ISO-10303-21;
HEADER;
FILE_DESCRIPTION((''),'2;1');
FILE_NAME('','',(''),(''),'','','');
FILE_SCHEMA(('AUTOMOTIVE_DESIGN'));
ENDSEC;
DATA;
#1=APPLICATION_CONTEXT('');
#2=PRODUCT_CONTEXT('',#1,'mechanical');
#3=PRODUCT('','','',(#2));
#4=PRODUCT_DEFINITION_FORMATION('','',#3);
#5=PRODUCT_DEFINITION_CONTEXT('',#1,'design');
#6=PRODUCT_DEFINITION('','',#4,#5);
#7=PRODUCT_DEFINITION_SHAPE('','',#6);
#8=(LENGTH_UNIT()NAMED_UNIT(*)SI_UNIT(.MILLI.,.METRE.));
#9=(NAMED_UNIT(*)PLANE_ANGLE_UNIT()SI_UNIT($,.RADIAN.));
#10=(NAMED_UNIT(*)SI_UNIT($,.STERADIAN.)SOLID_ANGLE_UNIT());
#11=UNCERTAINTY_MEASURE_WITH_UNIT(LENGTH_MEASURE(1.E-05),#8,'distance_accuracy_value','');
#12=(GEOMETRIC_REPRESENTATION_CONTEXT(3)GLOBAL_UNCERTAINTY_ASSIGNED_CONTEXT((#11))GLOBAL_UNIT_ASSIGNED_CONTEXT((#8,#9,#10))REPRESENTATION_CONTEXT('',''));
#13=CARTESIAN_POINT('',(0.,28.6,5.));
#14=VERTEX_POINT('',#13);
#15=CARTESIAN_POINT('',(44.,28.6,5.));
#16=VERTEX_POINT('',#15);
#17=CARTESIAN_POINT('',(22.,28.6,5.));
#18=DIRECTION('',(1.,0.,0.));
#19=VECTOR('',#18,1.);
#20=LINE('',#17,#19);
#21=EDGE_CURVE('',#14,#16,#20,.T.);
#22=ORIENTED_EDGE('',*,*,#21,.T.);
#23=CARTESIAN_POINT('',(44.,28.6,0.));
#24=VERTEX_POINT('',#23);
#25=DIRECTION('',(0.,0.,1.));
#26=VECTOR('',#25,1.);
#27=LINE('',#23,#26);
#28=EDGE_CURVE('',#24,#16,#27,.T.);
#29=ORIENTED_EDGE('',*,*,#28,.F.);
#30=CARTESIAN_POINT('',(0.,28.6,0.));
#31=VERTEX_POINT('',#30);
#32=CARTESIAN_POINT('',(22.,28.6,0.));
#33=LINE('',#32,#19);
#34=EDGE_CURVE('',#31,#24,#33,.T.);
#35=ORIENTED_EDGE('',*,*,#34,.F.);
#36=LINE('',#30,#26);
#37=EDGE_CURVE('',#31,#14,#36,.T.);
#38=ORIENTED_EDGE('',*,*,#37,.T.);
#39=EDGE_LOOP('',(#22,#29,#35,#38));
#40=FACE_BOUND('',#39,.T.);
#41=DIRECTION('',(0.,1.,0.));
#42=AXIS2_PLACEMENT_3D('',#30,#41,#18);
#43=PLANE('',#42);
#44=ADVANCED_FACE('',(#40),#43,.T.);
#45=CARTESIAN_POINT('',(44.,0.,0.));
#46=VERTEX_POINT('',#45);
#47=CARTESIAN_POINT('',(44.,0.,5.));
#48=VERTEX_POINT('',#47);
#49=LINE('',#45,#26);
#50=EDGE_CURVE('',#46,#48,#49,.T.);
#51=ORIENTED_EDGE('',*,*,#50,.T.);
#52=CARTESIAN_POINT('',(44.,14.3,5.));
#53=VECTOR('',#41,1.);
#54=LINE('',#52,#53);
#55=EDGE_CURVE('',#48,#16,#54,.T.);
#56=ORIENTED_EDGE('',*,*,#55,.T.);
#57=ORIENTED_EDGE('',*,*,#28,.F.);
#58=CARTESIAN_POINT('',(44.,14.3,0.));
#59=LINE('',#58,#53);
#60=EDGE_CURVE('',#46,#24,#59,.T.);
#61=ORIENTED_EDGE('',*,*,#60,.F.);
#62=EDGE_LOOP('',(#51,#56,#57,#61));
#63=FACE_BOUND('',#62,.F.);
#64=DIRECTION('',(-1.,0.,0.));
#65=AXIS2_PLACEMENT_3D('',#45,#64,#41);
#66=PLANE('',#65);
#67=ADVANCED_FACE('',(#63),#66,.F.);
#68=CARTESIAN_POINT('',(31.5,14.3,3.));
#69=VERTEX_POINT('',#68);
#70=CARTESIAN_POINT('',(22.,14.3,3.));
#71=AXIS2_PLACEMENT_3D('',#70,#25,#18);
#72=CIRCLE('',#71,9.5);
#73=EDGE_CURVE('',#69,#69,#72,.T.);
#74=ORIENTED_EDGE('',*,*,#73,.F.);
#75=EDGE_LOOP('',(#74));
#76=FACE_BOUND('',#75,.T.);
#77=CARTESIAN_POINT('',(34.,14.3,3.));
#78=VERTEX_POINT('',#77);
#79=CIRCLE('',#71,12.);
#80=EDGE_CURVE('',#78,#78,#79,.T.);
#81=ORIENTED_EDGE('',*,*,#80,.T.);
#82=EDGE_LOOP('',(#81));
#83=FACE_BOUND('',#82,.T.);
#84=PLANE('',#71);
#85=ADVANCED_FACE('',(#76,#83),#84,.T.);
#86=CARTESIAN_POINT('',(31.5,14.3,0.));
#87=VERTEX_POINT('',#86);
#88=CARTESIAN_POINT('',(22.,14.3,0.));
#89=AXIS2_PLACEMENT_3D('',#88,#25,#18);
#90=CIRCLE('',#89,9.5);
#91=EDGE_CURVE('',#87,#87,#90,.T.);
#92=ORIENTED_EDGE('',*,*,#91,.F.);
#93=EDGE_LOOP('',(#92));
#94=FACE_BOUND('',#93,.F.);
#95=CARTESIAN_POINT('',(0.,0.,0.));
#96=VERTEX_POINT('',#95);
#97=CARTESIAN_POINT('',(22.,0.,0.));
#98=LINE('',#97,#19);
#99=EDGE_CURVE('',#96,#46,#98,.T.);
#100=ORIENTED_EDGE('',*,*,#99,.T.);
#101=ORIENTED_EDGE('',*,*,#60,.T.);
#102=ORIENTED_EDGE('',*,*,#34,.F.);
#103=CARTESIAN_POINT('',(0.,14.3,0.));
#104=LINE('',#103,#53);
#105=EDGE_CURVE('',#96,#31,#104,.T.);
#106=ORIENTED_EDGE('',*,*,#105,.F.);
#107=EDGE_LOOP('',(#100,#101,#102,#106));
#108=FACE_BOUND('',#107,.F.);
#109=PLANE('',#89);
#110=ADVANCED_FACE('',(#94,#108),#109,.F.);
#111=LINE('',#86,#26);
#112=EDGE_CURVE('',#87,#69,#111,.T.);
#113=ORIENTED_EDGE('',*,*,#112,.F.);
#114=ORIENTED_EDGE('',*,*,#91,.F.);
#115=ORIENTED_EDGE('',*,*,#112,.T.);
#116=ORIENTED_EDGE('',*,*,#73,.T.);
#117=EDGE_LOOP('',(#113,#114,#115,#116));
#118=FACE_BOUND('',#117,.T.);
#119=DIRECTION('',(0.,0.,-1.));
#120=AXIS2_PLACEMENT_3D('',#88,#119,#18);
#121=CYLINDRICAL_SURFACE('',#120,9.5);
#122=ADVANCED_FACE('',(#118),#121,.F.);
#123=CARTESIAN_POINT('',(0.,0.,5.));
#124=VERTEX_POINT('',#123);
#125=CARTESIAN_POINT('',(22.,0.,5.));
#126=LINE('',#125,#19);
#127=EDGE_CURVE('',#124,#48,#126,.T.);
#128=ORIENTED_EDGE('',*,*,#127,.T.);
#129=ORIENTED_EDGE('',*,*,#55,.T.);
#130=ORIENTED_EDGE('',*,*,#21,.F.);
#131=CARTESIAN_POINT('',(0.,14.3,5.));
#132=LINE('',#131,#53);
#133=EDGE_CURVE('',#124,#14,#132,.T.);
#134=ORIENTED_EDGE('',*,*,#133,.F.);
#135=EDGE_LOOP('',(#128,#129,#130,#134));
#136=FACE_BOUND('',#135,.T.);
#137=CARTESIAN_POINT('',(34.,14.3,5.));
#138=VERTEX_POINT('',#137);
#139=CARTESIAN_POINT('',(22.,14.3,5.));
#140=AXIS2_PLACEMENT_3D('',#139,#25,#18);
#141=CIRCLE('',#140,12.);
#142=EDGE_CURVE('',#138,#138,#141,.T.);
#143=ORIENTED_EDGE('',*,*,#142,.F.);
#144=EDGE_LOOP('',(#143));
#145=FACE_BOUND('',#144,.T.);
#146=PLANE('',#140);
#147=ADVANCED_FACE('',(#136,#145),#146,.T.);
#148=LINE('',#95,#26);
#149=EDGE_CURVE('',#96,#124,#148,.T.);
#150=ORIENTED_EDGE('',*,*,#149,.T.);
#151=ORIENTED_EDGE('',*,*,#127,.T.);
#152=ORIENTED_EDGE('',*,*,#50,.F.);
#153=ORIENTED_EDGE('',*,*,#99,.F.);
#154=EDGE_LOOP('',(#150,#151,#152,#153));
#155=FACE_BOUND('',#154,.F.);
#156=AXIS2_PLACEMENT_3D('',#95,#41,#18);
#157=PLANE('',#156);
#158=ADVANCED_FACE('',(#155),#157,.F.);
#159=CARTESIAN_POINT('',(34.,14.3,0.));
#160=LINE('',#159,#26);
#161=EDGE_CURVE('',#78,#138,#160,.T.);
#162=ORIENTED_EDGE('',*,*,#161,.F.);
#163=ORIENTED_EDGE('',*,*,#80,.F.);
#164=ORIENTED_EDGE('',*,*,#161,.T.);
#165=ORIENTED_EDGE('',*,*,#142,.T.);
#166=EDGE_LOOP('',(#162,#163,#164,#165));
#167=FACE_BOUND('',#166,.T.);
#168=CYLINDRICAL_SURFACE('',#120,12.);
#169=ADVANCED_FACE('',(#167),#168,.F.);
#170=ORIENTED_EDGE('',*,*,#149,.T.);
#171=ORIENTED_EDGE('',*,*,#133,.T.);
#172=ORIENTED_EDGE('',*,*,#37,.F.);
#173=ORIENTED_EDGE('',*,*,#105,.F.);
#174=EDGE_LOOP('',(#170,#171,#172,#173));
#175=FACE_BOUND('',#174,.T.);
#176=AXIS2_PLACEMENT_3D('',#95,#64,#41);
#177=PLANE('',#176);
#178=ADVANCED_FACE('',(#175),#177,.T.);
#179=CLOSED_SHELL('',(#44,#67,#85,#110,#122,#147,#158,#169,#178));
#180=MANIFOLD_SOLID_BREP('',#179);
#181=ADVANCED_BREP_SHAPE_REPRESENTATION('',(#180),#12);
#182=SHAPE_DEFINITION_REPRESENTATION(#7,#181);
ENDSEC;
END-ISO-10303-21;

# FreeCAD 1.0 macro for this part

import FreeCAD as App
import Part
import Sketcher


def add_polygon(sketch, points):
    """Adds a closed chain of lines whose ends are joined by coincident constraints."""
    first, n = sketch.GeometryCount, len(points)
    for a, b in zip(points, points[1:] + points[:1]):
        sketch.addGeometry(Part.LineSegment(App.Vector(*a, 0), App.Vector(*b, 0)), False)
    for i in range(n):
        sketch.addConstraint(Sketcher.Constraint("Coincident", first + i, 2, first + (i + 1) % n, 1))

doc = App.newDocument("Part")
body = doc.addObject("PartDesign::Body", "Body")

sketch1 = doc.addObject("Sketcher::SketchObject", "Sketch")
body.addObject(sketch1)
sketch1.AttachmentSupport = (doc.XY_Plane, [""])
sketch1.MapMode = "FlatFace"
add_polygon(sketch1, [(0, 29), (0, 0), (44, 0), (44, 29)])
sketch1.addGeometry(Part.Circle(App.Vector(22, 14, 0), App.Vector(0, 0, 1), 12), False)
sketch1.addConstraint(Sketcher.Constraint("Vertical", 0))
sketch1.addConstraint(Sketcher.Constraint("Horizontal", 1))
sketch1.addConstraint(Sketcher.Constraint("Vertical", 2))
sketch1.addConstraint(Sketcher.Constraint("Horizontal", 3))
sketch1.addConstraint(Sketcher.Constraint("Coincident", 0, 2, -1, 1))
sketch1.addConstraint(Sketcher.Constraint("Diameter", 4, 24.0))
sketch1.addConstraint(Sketcher.Constraint("DistanceX", 1, 1, 1, 2, 44.0))
sketch1.addConstraint(Sketcher.Constraint("DistanceY", 0, 2, 0, 1, 28.6))
sketch1.addConstraint(Sketcher.Constraint("DistanceX", -1, 1, 4, 3, 22.0))
sketch1.addConstraint(Sketcher.Constraint("DistanceY", -1, 1, 4, 3, 14.3))
pad1 = doc.addObject("PartDesign::Pad", "Pad")
body.addObject(pad1)
pad1.Profile = sketch1
pad1.Length = 5

sketch2 = doc.addObject("Sketcher::SketchObject", "Sketch001")
body.addObject(sketch2)
sketch2.AttachmentSupport = (doc.XY_Plane, [""])
sketch2.MapMode = "FlatFace"
sketch2.addGeometry(Part.Circle(App.Vector(22, 14, 0), App.Vector(0, 0, 1), 12), False)
sketch2.addGeometry(Part.Circle(App.Vector(22, 14, 0), App.Vector(0, 0, 1), 10), False)
sketch2.addConstraint(Sketcher.Constraint("Coincident", 1, 3, 0, 3))
sketch2.addConstraint(Sketcher.Constraint("Diameter", 0, 24.0))
sketch2.addConstraint(Sketcher.Constraint("Diameter", 1, 19.0))
sketch2.addConstraint(Sketcher.Constraint("DistanceX", -1, 1, 0, 3, 22.0))
sketch2.addConstraint(Sketcher.Constraint("DistanceY", -1, 1, 0, 3, 14.3))
pad2 = doc.addObject("PartDesign::Pad", "Pad001")
body.addObject(pad2)
pad2.Profile = sketch2
pad2.Length = 3

doc.recompute()
